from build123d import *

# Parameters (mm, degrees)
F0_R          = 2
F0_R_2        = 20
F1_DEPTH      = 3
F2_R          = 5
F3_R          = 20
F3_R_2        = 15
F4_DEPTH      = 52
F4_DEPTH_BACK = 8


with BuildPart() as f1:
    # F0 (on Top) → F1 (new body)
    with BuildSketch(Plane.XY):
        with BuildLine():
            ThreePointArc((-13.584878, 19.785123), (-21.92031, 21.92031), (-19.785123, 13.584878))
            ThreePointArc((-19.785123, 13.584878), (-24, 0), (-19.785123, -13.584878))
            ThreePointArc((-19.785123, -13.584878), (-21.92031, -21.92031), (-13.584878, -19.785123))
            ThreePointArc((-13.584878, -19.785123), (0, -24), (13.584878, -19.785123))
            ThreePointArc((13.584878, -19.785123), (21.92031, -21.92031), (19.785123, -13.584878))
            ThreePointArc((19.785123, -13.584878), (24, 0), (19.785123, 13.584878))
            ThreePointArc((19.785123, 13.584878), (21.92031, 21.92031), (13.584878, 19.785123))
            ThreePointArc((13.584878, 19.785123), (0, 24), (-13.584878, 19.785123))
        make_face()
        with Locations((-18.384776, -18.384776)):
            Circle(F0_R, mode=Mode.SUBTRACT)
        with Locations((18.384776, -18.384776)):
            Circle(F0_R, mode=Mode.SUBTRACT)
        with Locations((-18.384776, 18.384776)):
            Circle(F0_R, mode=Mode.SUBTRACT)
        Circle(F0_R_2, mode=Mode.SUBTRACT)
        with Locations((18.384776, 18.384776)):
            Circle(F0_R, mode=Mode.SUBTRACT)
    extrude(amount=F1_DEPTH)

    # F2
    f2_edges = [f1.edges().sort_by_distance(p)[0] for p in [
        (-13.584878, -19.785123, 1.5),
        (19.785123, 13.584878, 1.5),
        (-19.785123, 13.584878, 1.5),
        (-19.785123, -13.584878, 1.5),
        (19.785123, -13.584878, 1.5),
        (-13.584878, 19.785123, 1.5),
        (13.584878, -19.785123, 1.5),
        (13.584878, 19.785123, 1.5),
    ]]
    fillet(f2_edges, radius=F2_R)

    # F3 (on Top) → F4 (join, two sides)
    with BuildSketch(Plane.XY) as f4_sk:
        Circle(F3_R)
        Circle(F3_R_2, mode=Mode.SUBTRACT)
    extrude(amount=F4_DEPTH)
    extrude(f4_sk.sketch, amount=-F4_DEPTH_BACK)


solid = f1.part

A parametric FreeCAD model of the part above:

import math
import FreeCAD as App
import Part
import Sketcher
Q = App.Units.Quantity


def edges_at(feature, points):
    """Names of the edges that pass closest to the given points."""
    edges = feature.Shape.Edges
    near = lambda p: min(range(len(edges)), key=lambda i: edges[i].distToShape(Part.Vertex(*p))[0])
    return sorted({f"Edge{near(p) + 1}" for p in points})

doc = App.newDocument("Part")
body = doc.addObject("PartDesign::Body", "Body")

sketch1 = doc.addObject("Sketcher::SketchObject", "Sketch")
body.addObject(sketch1)
sketch1.AttachmentSupport = (doc.XY_Plane, [""])
sketch1.MapMode = "FlatFace"
sketch1.addGeometry([
    Part.ArcOfCircle(Part.Circle(App.Vector(-18.4, 18.4, 0), App.Vector(0, 0, 1), 5), math.radians(16), math.radians(254)),
    Part.ArcOfCircle(Part.Circle(App.Vector(0, 0, 0), App.Vector(0, 0, 1), 24), math.radians(146), math.radians(214)),
    Part.ArcOfCircle(Part.Circle(App.Vector(-18.4, -18.4, 0), App.Vector(0, 0, 1), 5), math.radians(106), math.radians(344)),
    Part.ArcOfCircle(Part.Circle(App.Vector(0, 0, 0), App.Vector(0, 0, 1), 24), math.radians(-124), math.radians(-56)),
    Part.ArcOfCircle(Part.Circle(App.Vector(18.4, -18.4, 0), App.Vector(0, 0, 1), 5), math.radians(-164), math.radians(74)),
    Part.ArcOfCircle(Part.Circle(App.Vector(0, 0, 0), App.Vector(0, 0, 1), 24), math.radians(-34), math.radians(34)),
    Part.ArcOfCircle(Part.Circle(App.Vector(18.4, 18.4, 0), App.Vector(0, 0, 1), 5), math.radians(-74), math.radians(164)),
    Part.ArcOfCircle(Part.Circle(App.Vector(0, 0, 0), App.Vector(0, 0, 1), 24), math.radians(56), math.radians(124)),
    Part.Circle(App.Vector(-18.4, -18.4, 0), App.Vector(0, 0, 1), 2),
    Part.Circle(App.Vector(18.4, -18.4, 0), App.Vector(0, 0, 1), 2),
    Part.Circle(App.Vector(-18.4, 18.4, 0), App.Vector(0, 0, 1), 2),
    Part.Circle(App.Vector(0, 0, 0), App.Vector(0, 0, 1), 20),
    Part.Circle(App.Vector(18.4, 18.4, 0), App.Vector(0, 0, 1), 2),
], False)
sketch1.addConstraint([
    Sketcher.Constraint("Coincident", 0, 2, 1, 1),
    Sketcher.Constraint("Coincident", 1, 2, 2, 1),
    Sketcher.Constraint("Coincident", 2, 2, 3, 1),
    Sketcher.Constraint("Coincident", 3, 2, 4, 1),
    Sketcher.Constraint("Coincident", 4, 2, 5, 1),
    Sketcher.Constraint("Coincident", 5, 2, 6, 1),
    Sketcher.Constraint("Coincident", 6, 2, 7, 1),
    Sketcher.Constraint("Coincident", 7, 2, 0, 1),
    Sketcher.Constraint("Coincident", 1, 3, -1, 1),
    Sketcher.Constraint("Coincident", 3, 3, -1, 1),
    Sketcher.Constraint("Coincident", 5, 3, -1, 1),
    Sketcher.Constraint("Coincident", 7, 3, -1, 1),
    Sketcher.Constraint("Coincident", 11, 3, -1, 1),
    Sketcher.Constraint("Coincident", 8, 3, 2, 3),
    Sketcher.Constraint("Coincident", 9, 3, 4, 3),
    Sketcher.Constraint("Coincident", 10, 3, 0, 3),
    Sketcher.Constraint("Coincident", 12, 3, 6, 3),
    Sketcher.Constraint("Equal", 0, 2),
    Sketcher.Constraint("Equal", 1, 3),
    Sketcher.Constraint("Equal", 2, 4),
    Sketcher.Constraint("Equal", 3, 5),
    Sketcher.Constraint("Equal", 4, 6),
    Sketcher.Constraint("Equal", 5, 7),
    Sketcher.Constraint("Equal", 8, 9),
    Sketcher.Constraint("Equal", 9, 10),
    Sketcher.Constraint("Equal", 10, 12),
    Sketcher.Constraint("Symmetric", 0, 3, 4, 3, -1, 1),
    Sketcher.Constraint("Symmetric", 2, 3, 6, 3, -1, 1),
    Sketcher.Constraint("Symmetric", 2, 3, 4, 3, -2),
    Sketcher.Constraint("Diameter", 8, Q("4 mm")),
    Sketcher.Constraint("Diameter", 11, Q("40 mm")),
    Sketcher.Constraint("Radius", 0, Q("5 mm")),
    Sketcher.Constraint("Radius", 1, Q("24 mm")),
    Sketcher.Constraint("DistanceY", 0, 2, 10, 3, Q("4.799898 mm")),
    Sketcher.Constraint("DistanceX", 8, 3, 2, 2, Q("4.799898 mm")),
])
pad1 = doc.addObject("PartDesign::Pad", "Pad")
body.addObject(pad1)
pad1.Profile = sketch1
pad1.Length = 3
doc.recompute()

fillet = doc.addObject("PartDesign::Fillet", "Fillet")
body.addObject(fillet)
fillet.Base = (pad1, edges_at(pad1, [
    (-13.585, -19.785, 1.5),
    (19.785, 13.585, 1.5),
    (-19.785, 13.585, 1.5),
    (-19.785, -13.585, 1.5),
    (19.785, -13.585, 1.5),
    (-13.585, 19.785, 1.5),
    (13.585, -19.785, 1.5),
    (13.585, 19.785, 1.5),
]))
fillet.Radius = 5

sketch2 = doc.addObject("Sketcher::SketchObject", "Sketch001")
body.addObject(sketch2)
sketch2.AttachmentSupport = (doc.XY_Plane, [""])
sketch2.MapMode = "FlatFace"
sketch2.addGeometry([
    Part.Circle(App.Vector(0, 0, 0), App.Vector(0, 0, 1), 20),
    Part.Circle(App.Vector(0, 0, 0), App.Vector(0, 0, 1), 15),
], False)
sketch2.addConstraint([
    Sketcher.Constraint("Coincident", 0, 3, -1, 1),
    Sketcher.Constraint("Coincident", 1, 3, -1, 1),
    Sketcher.Constraint("Diameter", 0, Q("40 mm")),
    Sketcher.Constraint("Diameter", 1, Q("30 mm")),
])
pad2 = doc.addObject("PartDesign::Pad", "Pad001")
body.addObject(pad2)
pad2.Profile = sketch2
pad2.Type = "TwoLengths"
pad2.Length = 52
pad2.Length2 = 8

doc.recompute()
